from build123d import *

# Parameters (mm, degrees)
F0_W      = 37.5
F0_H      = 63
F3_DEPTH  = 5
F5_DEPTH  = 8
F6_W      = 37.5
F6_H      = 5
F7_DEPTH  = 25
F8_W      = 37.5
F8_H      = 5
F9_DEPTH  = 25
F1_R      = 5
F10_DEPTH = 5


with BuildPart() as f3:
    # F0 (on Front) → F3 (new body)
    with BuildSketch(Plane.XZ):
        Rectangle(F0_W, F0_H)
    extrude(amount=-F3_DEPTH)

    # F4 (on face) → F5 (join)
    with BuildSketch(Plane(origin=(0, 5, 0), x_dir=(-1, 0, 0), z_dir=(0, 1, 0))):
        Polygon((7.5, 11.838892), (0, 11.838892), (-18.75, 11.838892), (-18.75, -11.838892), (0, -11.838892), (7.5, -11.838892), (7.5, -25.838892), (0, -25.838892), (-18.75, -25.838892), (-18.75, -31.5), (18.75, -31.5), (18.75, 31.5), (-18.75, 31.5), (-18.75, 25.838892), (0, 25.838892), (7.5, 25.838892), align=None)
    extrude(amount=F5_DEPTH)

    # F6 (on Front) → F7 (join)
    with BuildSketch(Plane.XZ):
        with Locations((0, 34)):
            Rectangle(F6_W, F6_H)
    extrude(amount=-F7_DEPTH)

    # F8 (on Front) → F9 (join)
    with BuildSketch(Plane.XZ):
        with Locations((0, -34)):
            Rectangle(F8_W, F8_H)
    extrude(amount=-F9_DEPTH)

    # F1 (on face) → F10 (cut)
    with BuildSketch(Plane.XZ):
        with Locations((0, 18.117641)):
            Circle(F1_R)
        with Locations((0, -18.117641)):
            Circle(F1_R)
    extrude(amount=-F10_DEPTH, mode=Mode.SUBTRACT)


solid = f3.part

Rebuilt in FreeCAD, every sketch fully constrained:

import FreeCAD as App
import Part
import Sketcher
Q = App.Units.Quantity

doc = App.newDocument("Part")
params = doc.addObject("Spreadsheet::Sheet", "Params")
for row, (alias, value) in enumerate([
    ("sketch1_height", "63 mm"),
    ("sketch1_width", "37.5 mm"),
    ("pad1_length", "5 mm"),
    ("sketch2_height", "14 mm"),
    ("sketch2_height2", "63 mm"),
    ("sketch2_width", "37.5 mm"),
    ("sketch2_width2", "26.25 mm"),
    ("pad2_length", "8 mm"),
    ("sketch3_height", "5 mm"),
    ("sketch3_width", "37.5 mm"),
    ("pad3_length", "25 mm"),
    ("sketch4_height", "5 mm"),
    ("sketch4_width", "37.5 mm"),
    ("pad4_length", "25 mm"),
    ("sketch5_diameter", "10 mm"),
    ("pocket1_length", "5 mm"),
], start=1):
    params.set(f"A{row}", alias)
    params.set(f"B{row}", "=" + value)
    params.setAlias(f"B{row}", alias)

body = doc.addObject("PartDesign::Body", "Body")

# Sketch on XZ plane
sketch1 = body.newObject("Sketcher::SketchObject", "Sketch")
sketch1.AttachmentSupport = (doc.getObject("XZ_Plane"), [""])
sketch1.MapMode = "FlatFace"
sketch1.addGeometry([
    Part.LineSegment(App.Vector(-19, 32, 0), App.Vector(-19, -32, 0)),
    Part.LineSegment(App.Vector(-19, -32, 0), App.Vector(19, -32, 0)),
    Part.LineSegment(App.Vector(19, -32, 0), App.Vector(19, 32, 0)),
    Part.LineSegment(App.Vector(19, 32, 0), App.Vector(-19, 32, 0)),
], False)
sketch1.addConstraint([
    Sketcher.Constraint("Coincident", 0, 2, 1, 1),
    Sketcher.Constraint("Coincident", 1, 2, 2, 1),
    Sketcher.Constraint("Coincident", 2, 2, 3, 1),
    Sketcher.Constraint("Coincident", 3, 2, 0, 1),
    Sketcher.Constraint("Vertical", 0),
    Sketcher.Constraint("Horizontal", 1),
    Sketcher.Constraint("Vertical", 2),
    Sketcher.Constraint("Horizontal", 3),
    Sketcher.Constraint("Symmetric", 0, 2, 2, 2, -1, 1),
    Sketcher.Constraint("DistanceY", 0, 2, 0, 1, Q("63 mm")),
    Sketcher.Constraint("DistanceX", 1, 1, 1, 2, Q("37.5 mm")),
])
sketch1.setExpression("Constraints[9]", "Params.sketch1_height")
sketch1.setExpression("Constraints[10]", "Params.sketch1_width")
pad1 = body.newObject("PartDesign::Pad", "Pad")
pad1.Profile = sketch1
pad1.setExpression("Length", "Params.pad1_length")
pad1.Reversed = True

# Sketch on XZ plane
sketch2 = body.newObject("Sketcher::SketchObject", "Sketch001")
sketch2.AttachmentSupport = (doc.getObject("XZ_Plane"), [""])
sketch2.MapMode = "FlatFace"
sketch2.AttachmentOffset = App.Placement(App.Vector(0, 0, -5), App.Rotation())
sketch2.addGeometry([
    Part.LineSegment(App.Vector(-8, 12, 0), App.Vector(19, 12, 0)),  # 0
    Part.LineSegment(App.Vector(19, 12, 0), App.Vector(19, -12, 0)),  # 1
    Part.LineSegment(App.Vector(19, -12, 0), App.Vector(-8, -12, 0)),  # 2
    Part.LineSegment(App.Vector(-8, -12, 0), App.Vector(-8, -26, 0)),  # 3
    Part.LineSegment(App.Vector(-8, -26, 0), App.Vector(19, -26, 0)),  # 4
    Part.LineSegment(App.Vector(19, -26, 0), App.Vector(19, -32, 0)),  # 5
    Part.LineSegment(App.Vector(19, -32, 0), App.Vector(-19, -32, 0)),  # 6
    Part.LineSegment(App.Vector(-19, -32, 0), App.Vector(-19, 32, 0)),  # 7
    Part.LineSegment(App.Vector(-19, 32, 0), App.Vector(19, 32, 0)),  # 8
    Part.LineSegment(App.Vector(19, 32, 0), App.Vector(19, 26, 0)),  # 9
    Part.LineSegment(App.Vector(19, 26, 0), App.Vector(-8, 26, 0)),  # 10
    Part.LineSegment(App.Vector(-8, 26, 0), App.Vector(-8, 12, 0)),  # 11
], False)
sketch2.addConstraint([
    Sketcher.Constraint("Coincident", 0, 2, 1, 1),
    Sketcher.Constraint("Coincident", 1, 2, 2, 1),
    Sketcher.Constraint("Coincident", 2, 2, 3, 1),
    Sketcher.Constraint("Coincident", 3, 2, 4, 1),
    Sketcher.Constraint("Coincident", 4, 2, 5, 1),
    Sketcher.Constraint("Coincident", 5, 2, 6, 1),
    Sketcher.Constraint("Coincident", 6, 2, 7, 1),
    Sketcher.Constraint("Coincident", 7, 2, 8, 1),
    Sketcher.Constraint("Coincident", 8, 2, 9, 1),
    Sketcher.Constraint("Coincident", 9, 2, 10, 1),
    Sketcher.Constraint("Coincident", 10, 2, 11, 1),
    Sketcher.Constraint("Coincident", 11, 2, 0, 1),
    Sketcher.Constraint("Horizontal", 0),
    Sketcher.Constraint("Vertical", 1),
    Sketcher.Constraint("Horizontal", 2),
    Sketcher.Constraint("Vertical", 3),
    Sketcher.Constraint("Horizontal", 4),
    Sketcher.Constraint("Vertical", 5),
    Sketcher.Constraint("Horizontal", 6),
    Sketcher.Constraint("Vertical", 7),
    Sketcher.Constraint("Horizontal", 8),
    Sketcher.Constraint("Vertical", 9),
    Sketcher.Constraint("Horizontal", 10),
    Sketcher.Constraint("Vertical", 11),
    Sketcher.Constraint("Symmetric", 5, 2, 7, 2, -1, 1),
    Sketcher.Constraint("Symmetric", 4, 2, 9, 2, -1),
    Sketcher.Constraint("Symmetric", 2, 2, 11, 2, -1),
    Sketcher.Constraint("Vertical", 1, 2, 4, 2),
    Sketcher.Constraint("DistanceY", 3, 2, 3, 1, Q("14 mm")),
    Sketcher.Constraint("DistanceY", 7, 1, 7, 2, Q("63 mm")),
    Sketcher.Constraint("DistanceX", 6, 2, 6, 1, Q("37.5 mm")),
    Sketcher.Constraint("DistanceX", 0, 1, 0, 2, Q("26.25 mm")),
    Sketcher.Constraint("DistanceY", 1, 2, 1, 1, Q("23.677784 mm")),
])
sketch2.setExpression("Constraints[28]", "Params.sketch2_height")
sketch2.setExpression("Constraints[29]", "Params.sketch2_height2")
sketch2.setExpression("Constraints[30]", "Params.sketch2_width")
sketch2.setExpression("Constraints[31]", "Params.sketch2_width2")
pad2 = body.newObject("PartDesign::Pad", "Pad001")
pad2.Profile = sketch2
pad2.setExpression("Length", "Params.pad2_length")
pad2.Reversed = True

# Sketch on XZ plane
sketch3 = body.newObject("Sketcher::SketchObject", "Sketch002")
sketch3.AttachmentSupport = (doc.getObject("XZ_Plane"), [""])
sketch3.MapMode = "FlatFace"
sketch3.addGeometry([
    Part.LineSegment(App.Vector(-19, 36, 0), App.Vector(-19, 32, 0)),
    Part.LineSegment(App.Vector(-19, 32, 0), App.Vector(19, 32, 0)),
    Part.LineSegment(App.Vector(19, 32, 0), App.Vector(19, 36, 0)),
    Part.LineSegment(App.Vector(19, 36, 0), App.Vector(-19, 36, 0)),
], False)
sketch3.addConstraint([
    Sketcher.Constraint("Coincident", 0, 2, 1, 1),
    Sketcher.Constraint("Coincident", 1, 2, 2, 1),
    Sketcher.Constraint("Coincident", 2, 2, 3, 1),
    Sketcher.Constraint("Coincident", 3, 2, 0, 1),
    Sketcher.Constraint("Vertical", 0),
    Sketcher.Constraint("Horizontal", 1),
    Sketcher.Constraint("Vertical", 2),
    Sketcher.Constraint("Horizontal", 3),
    Sketcher.Constraint("DistanceY", 0, 2, 0, 1, Q("5 mm")),
    Sketcher.Constraint("DistanceX", 1, 1, 1, 2, Q("37.5 mm")),
    Sketcher.Constraint("DistanceY", -1, 1, 0, 2, Q("31.5 mm")),
    Sketcher.Constraint("DistanceX", 0, 2, -1, 1, Q("18.75 mm")),
])
sketch3.setExpression("Constraints[8]", "Params.sketch3_height")
sketch3.setExpression("Constraints[9]", "Params.sketch3_width")
pad3 = body.newObject("PartDesign::Pad", "Pad002")
pad3.Profile = sketch3
pad3.setExpression("Length", "Params.pad3_length")
pad3.Reversed = True

# Sketch on XZ plane
sketch4 = body.newObject("Sketcher::SketchObject", "Sketch003")
sketch4.AttachmentSupport = (doc.getObject("XZ_Plane"), [""])
sketch4.MapMode = "FlatFace"
sketch4.addGeometry([
    Part.LineSegment(App.Vector(-19, -32, 0), App.Vector(-19, -36, 0)),
    Part.LineSegment(App.Vector(-19, -36, 0), App.Vector(19, -36, 0)),
    Part.LineSegment(App.Vector(19, -36, 0), App.Vector(19, -32, 0)),
    Part.LineSegment(App.Vector(19, -32, 0), App.Vector(-19, -32, 0)),
], False)
sketch4.addConstraint([
    Sketcher.Constraint("Coincident", 0, 2, 1, 1),
    Sketcher.Constraint("Coincident", 1, 2, 2, 1),
    Sketcher.Constraint("Coincident", 2, 2, 3, 1),
    Sketcher.Constraint("Coincident", 3, 2, 0, 1),
    Sketcher.Constraint("Vertical", 0),
    Sketcher.Constraint("Horizontal", 1),
    Sketcher.Constraint("Vertical", 2),
    Sketcher.Constraint("Horizontal", 3),
    Sketcher.Constraint("DistanceY", 0, 2, 0, 1, Q("5 mm")),
    Sketcher.Constraint("DistanceX", 1, 1, 1, 2, Q("37.5 mm")),
    Sketcher.Constraint("DistanceY", 0, 2, -1, 1, Q("36.5 mm")),
    Sketcher.Constraint("DistanceX", 0, 2, -1, 1, Q("18.75 mm")),
])
sketch4.setExpression("Constraints[8]", "Params.sketch4_height")
sketch4.setExpression("Constraints[9]", "Params.sketch4_width")
pad4 = body.newObject("PartDesign::Pad", "Pad003")
pad4.Profile = sketch4
pad4.setExpression("Length", "Params.pad4_length")
pad4.Reversed = True

# Sketch on XZ plane
sketch5 = body.newObject("Sketcher::SketchObject", "Sketch004")
sketch5.AttachmentSupport = (doc.getObject("XZ_Plane"), [""])
sketch5.MapMode = "FlatFace"
sketch5.addGeometry([
    Part.Circle(App.Vector(0, 18, 0), App.Vector(0, 0, 1), 5),
    Part.Circle(App.Vector(0, -18, 0), App.Vector(0, 0, 1), 5),
], False)
sketch5.addConstraint([
    Sketcher.Constraint("Equal", 0, 1),
    Sketcher.Constraint("Symmetric", 0, 3, 1, 3, -1, 1),
    Sketcher.Constraint("PointOnObject", 0, 3, -2),
    Sketcher.Constraint("Diameter", 0, Q("10 mm")),
    Sketcher.Constraint("DistanceY", -1, 1, 0, 3, Q("18.117641 mm")),
])
sketch5.setExpression("Constraints[3]", "Params.sketch5_diameter")
pocket1 = body.newObject("PartDesign::Pocket", "Pocket")
pocket1.Profile = sketch5
pocket1.setExpression("Length", "Params.pocket1_length")

doc.recompute()
